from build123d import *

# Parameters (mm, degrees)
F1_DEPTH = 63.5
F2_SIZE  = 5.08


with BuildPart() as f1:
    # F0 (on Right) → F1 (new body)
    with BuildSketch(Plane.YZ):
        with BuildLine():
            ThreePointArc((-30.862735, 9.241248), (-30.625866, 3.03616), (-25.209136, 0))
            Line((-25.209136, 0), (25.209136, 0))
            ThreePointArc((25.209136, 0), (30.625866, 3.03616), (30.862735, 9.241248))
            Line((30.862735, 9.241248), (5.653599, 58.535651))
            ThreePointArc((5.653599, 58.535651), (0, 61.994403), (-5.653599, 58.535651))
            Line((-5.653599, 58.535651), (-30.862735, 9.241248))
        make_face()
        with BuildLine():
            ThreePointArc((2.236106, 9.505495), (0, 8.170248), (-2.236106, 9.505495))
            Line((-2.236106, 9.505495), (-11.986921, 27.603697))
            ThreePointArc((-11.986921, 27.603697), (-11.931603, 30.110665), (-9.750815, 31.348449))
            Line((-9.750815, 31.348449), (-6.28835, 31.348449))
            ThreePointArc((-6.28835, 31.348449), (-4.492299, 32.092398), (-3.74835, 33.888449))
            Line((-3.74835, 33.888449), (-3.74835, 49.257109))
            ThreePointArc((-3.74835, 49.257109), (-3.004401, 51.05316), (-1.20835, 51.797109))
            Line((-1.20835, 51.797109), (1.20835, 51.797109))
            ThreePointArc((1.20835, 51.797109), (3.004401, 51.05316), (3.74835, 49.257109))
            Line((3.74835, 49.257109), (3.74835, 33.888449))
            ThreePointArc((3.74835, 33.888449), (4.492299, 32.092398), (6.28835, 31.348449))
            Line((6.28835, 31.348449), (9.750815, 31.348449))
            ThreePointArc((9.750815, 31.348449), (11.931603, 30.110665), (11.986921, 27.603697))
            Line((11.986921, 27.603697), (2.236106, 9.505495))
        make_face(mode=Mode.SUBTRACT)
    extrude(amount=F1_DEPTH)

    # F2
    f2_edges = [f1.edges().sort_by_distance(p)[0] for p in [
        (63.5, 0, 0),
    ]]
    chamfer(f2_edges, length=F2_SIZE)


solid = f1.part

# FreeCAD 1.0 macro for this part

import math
import FreeCAD as App
import Part
import Sketcher
from FreeCAD import Vector
Q = App.Units.Quantity


def edges_at(feature, points):
    """Names of the edges that pass closest to the given points."""
    edges = feature.Shape.Edges
    near = lambda p: min(range(len(edges)), key=lambda i: edges[i].distToShape(Part.Vertex(*p))[0])
    return sorted({f"Edge{near(p) + 1}" for p in points})

doc = App.newDocument("Part")
body = doc.addObject("PartDesign::Body", "Body")

sketch1 = body.newObject("Sketcher::SketchObject", "Sketch")
sketch1.AttachmentSupport = (doc.getObject("YZ_Plane"), [""])
sketch1.MapMode = "FlatFace"
sketch1.addGeometry(Part.ArcOfCircle(Part.Circle(Vector(-25.2, 6.3, 0), Vector(0, 0, 1), 6.3), math.radians(153), math.radians(270)), False)
sketch1.addGeometry(Part.LineSegment(Vector(-25.2, 0, 0), Vector(25.2, 0, 0)), False)
sketch1.addGeometry(Part.ArcOfCircle(Part.Circle(Vector(25.2, 6.3, 0), Vector(0, 0, 1), 6.3), math.radians(-90), math.radians(27)), False)
sketch1.addGeometry(Part.LineSegment(Vector(30.9, 9.2, 0), Vector(5.7, 58.5, 0)), False)
sketch1.addGeometry(Part.ArcOfCircle(Part.Circle(Vector(0, 55.6, 0), Vector(0, 0, 1), 6.3), math.radians(27), math.radians(153)), False)
sketch1.addGeometry(Part.LineSegment(Vector(-5.7, 58.5, 0), Vector(-30.9, 9.2, 0)), False)
sketch1.addGeometry(Part.LineSegment(Vector(12, 27.6, 0), Vector(2.2, 9.5, 0)), False)
sketch1.addGeometry(Part.ArcOfCircle(Part.Circle(Vector(0, 10.7, 0), Vector(0, 0, 1), 2.5), math.radians(-152), math.radians(-28)), False)
sketch1.addGeometry(Part.LineSegment(Vector(-2.2, 9.5, 0), Vector(-12, 27.6, 0)), False)
sketch1.addGeometry(Part.ArcOfCircle(Part.Circle(Vector(-9.8, 28.8, 0), Vector(0, 0, 1), 2.5), math.radians(90), math.radians(208)), False)
sketch1.addGeometry(Part.LineSegment(Vector(-9.8, 31.3, 0), Vector(-6.3, 31.3, 0)), False)
sketch1.addGeometry(Part.ArcOfCircle(Part.Circle(Vector(-6.3, 33.9, 0), Vector(0, 0, 1), 2.5), math.radians(-90), math.radians(0)), False)
sketch1.addGeometry(Part.LineSegment(Vector(-3.7, 33.9, 0), Vector(-3.7, 49.3, 0)), False)
sketch1.addGeometry(Part.ArcOfCircle(Part.Circle(Vector(-1.2, 49.3, 0), Vector(0, 0, 1), 2.5), math.radians(90), math.radians(180)), False)
sketch1.addGeometry(Part.LineSegment(Vector(-1.2, 51.8, 0), Vector(1.2, 51.8, 0)), False)
sketch1.addGeometry(Part.ArcOfCircle(Part.Circle(Vector(1.2, 49.3, 0), Vector(0, 0, 1), 2.5), math.radians(0), math.radians(90)), False)
sketch1.addGeometry(Part.LineSegment(Vector(3.7, 49.3, 0), Vector(3.7, 33.9, 0)), False)
sketch1.addGeometry(Part.ArcOfCircle(Part.Circle(Vector(6.3, 33.9, 0), Vector(0, 0, 1), 2.5), math.radians(-180), math.radians(-90)), False)
sketch1.addGeometry(Part.LineSegment(Vector(6.3, 31.3, 0), Vector(9.8, 31.3, 0)), False)
sketch1.addGeometry(Part.ArcOfCircle(Part.Circle(Vector(9.8, 28.8, 0), Vector(0, 0, 1), 2.5), math.radians(-28), math.radians(90)), False)
sketch1.addConstraint(Sketcher.Constraint("Tangent", 0, 2, 1, 1))
sketch1.addConstraint(Sketcher.Constraint("Tangent", 1, 2, 2, 1))
sketch1.addConstraint(Sketcher.Constraint("Tangent", 2, 2, 3, 1))
sketch1.addConstraint(Sketcher.Constraint("Tangent", 3, 2, 4, 1))
sketch1.addConstraint(Sketcher.Constraint("Tangent", 4, 2, 5, 1))
sketch1.addConstraint(Sketcher.Constraint("Tangent", 5, 2, 0, 1))
sketch1.addConstraint(Sketcher.Constraint("Tangent", 6, 2, 7, 2))
sketch1.addConstraint(Sketcher.Constraint("Tangent", 7, 1, 8, 1))
sketch1.addConstraint(Sketcher.Constraint("Tangent", 8, 2, 9, 2))
sketch1.addConstraint(Sketcher.Constraint("Tangent", 9, 1, 10, 1))
sketch1.addConstraint(Sketcher.Constraint("Tangent", 10, 2, 11, 1))
sketch1.addConstraint(Sketcher.Constraint("Tangent", 11, 2, 12, 1))
sketch1.addConstraint(Sketcher.Constraint("Tangent", 12, 2, 13, 2))
sketch1.addConstraint(Sketcher.Constraint("Tangent", 13, 1, 14, 1))
sketch1.addConstraint(Sketcher.Constraint("Tangent", 14, 2, 15, 2))
sketch1.addConstraint(Sketcher.Constraint("Tangent", 15, 1, 16, 1))
sketch1.addConstraint(Sketcher.Constraint("Tangent", 16, 2, 17, 1))
sketch1.addConstraint(Sketcher.Constraint("Tangent", 17, 2, 18, 1))
sketch1.addConstraint(Sketcher.Constraint("Tangent", 18, 2, 19, 2))
sketch1.addConstraint(Sketcher.Constraint("Tangent", 19, 1, 6, 1))
sketch1.addConstraint(Sketcher.Constraint("Horizontal", 1))
sketch1.addConstraint(Sketcher.Constraint("Horizontal", 10))
sketch1.addConstraint(Sketcher.Constraint("Vertical", 12))
sketch1.addConstraint(Sketcher.Constraint("Horizontal", 14))
sketch1.addConstraint(Sketcher.Constraint("Vertical", 16))
sketch1.addConstraint(Sketcher.Constraint("Horizontal", 18))
sketch1.addConstraint(Sketcher.Constraint("Equal", 0, 2))
sketch1.addConstraint(Sketcher.Constraint("Equal", 2, 4))
sketch1.addConstraint(Sketcher.Constraint("Equal", 7, 9))
sketch1.addConstraint(Sketcher.Constraint("Equal", 9, 11))
sketch1.addConstraint(Sketcher.Constraint("Equal", 11, 13))
sketch1.addConstraint(Sketcher.Constraint("Equal", 13, 15))
sketch1.addConstraint(Sketcher.Constraint("Equal", 15, 17))
sketch1.addConstraint(Sketcher.Constraint("Equal", 17, 19))
sketch1.addConstraint(Sketcher.Constraint("Symmetric", 0, 2, 1, 2, -1, 1))
sketch1.addConstraint(Sketcher.Constraint("Symmetric", 11, 3, 17, 3, -2))
sketch1.addConstraint(Sketcher.Constraint("Symmetric", 6, 2, 7, 1, -2))
sketch1.addConstraint(Sketcher.Constraint("PointOnObject", 4, 3, -2))
sketch1.addConstraint(Sketcher.Constraint("Radius", 7, Q("0.1 in")))
sketch1.addConstraint(Sketcher.Constraint("Radius", 0, Q("0.25 in")))
sketch1.addConstraint(Sketcher.Constraint("DistanceX", 14, 1, 14, 2, 2.4167))
sketch1.addConstraint(Sketcher.Constraint("DistanceY", 12, 1, 12, 2, 15.36866))
sketch1.addConstraint(Sketcher.Constraint("DistanceX", -1, 1, 3, 2, 5.653599))
sketch1.addConstraint(Sketcher.Constraint("DistanceY", 7, 3, 11, 3, 23.178202))
sketch1.addConstraint(Sketcher.Constraint("DistanceY", 2, 2, 7, 3, 1.469))
sketch1.addConstraint(Sketcher.Constraint("DistanceY", 17, 3, 3, 2, 24.647201))
sketch1.addConstraint(Sketcher.Constraint("DistanceX", 10, 1, 10, 2, 3.462465))
pad1 = body.newObject("PartDesign::Pad", "Pad")
pad1.Profile = sketch1
pad1.Length = Q("2.5 in")
doc.recompute()

chamfer = body.newObject("PartDesign::Chamfer", "Chamfer")
chamfer.Base = (pad1, edges_at(pad1, [(63.5, 0, 0)]))
chamfer.Size = Q("0.2 in")

doc.recompute()
